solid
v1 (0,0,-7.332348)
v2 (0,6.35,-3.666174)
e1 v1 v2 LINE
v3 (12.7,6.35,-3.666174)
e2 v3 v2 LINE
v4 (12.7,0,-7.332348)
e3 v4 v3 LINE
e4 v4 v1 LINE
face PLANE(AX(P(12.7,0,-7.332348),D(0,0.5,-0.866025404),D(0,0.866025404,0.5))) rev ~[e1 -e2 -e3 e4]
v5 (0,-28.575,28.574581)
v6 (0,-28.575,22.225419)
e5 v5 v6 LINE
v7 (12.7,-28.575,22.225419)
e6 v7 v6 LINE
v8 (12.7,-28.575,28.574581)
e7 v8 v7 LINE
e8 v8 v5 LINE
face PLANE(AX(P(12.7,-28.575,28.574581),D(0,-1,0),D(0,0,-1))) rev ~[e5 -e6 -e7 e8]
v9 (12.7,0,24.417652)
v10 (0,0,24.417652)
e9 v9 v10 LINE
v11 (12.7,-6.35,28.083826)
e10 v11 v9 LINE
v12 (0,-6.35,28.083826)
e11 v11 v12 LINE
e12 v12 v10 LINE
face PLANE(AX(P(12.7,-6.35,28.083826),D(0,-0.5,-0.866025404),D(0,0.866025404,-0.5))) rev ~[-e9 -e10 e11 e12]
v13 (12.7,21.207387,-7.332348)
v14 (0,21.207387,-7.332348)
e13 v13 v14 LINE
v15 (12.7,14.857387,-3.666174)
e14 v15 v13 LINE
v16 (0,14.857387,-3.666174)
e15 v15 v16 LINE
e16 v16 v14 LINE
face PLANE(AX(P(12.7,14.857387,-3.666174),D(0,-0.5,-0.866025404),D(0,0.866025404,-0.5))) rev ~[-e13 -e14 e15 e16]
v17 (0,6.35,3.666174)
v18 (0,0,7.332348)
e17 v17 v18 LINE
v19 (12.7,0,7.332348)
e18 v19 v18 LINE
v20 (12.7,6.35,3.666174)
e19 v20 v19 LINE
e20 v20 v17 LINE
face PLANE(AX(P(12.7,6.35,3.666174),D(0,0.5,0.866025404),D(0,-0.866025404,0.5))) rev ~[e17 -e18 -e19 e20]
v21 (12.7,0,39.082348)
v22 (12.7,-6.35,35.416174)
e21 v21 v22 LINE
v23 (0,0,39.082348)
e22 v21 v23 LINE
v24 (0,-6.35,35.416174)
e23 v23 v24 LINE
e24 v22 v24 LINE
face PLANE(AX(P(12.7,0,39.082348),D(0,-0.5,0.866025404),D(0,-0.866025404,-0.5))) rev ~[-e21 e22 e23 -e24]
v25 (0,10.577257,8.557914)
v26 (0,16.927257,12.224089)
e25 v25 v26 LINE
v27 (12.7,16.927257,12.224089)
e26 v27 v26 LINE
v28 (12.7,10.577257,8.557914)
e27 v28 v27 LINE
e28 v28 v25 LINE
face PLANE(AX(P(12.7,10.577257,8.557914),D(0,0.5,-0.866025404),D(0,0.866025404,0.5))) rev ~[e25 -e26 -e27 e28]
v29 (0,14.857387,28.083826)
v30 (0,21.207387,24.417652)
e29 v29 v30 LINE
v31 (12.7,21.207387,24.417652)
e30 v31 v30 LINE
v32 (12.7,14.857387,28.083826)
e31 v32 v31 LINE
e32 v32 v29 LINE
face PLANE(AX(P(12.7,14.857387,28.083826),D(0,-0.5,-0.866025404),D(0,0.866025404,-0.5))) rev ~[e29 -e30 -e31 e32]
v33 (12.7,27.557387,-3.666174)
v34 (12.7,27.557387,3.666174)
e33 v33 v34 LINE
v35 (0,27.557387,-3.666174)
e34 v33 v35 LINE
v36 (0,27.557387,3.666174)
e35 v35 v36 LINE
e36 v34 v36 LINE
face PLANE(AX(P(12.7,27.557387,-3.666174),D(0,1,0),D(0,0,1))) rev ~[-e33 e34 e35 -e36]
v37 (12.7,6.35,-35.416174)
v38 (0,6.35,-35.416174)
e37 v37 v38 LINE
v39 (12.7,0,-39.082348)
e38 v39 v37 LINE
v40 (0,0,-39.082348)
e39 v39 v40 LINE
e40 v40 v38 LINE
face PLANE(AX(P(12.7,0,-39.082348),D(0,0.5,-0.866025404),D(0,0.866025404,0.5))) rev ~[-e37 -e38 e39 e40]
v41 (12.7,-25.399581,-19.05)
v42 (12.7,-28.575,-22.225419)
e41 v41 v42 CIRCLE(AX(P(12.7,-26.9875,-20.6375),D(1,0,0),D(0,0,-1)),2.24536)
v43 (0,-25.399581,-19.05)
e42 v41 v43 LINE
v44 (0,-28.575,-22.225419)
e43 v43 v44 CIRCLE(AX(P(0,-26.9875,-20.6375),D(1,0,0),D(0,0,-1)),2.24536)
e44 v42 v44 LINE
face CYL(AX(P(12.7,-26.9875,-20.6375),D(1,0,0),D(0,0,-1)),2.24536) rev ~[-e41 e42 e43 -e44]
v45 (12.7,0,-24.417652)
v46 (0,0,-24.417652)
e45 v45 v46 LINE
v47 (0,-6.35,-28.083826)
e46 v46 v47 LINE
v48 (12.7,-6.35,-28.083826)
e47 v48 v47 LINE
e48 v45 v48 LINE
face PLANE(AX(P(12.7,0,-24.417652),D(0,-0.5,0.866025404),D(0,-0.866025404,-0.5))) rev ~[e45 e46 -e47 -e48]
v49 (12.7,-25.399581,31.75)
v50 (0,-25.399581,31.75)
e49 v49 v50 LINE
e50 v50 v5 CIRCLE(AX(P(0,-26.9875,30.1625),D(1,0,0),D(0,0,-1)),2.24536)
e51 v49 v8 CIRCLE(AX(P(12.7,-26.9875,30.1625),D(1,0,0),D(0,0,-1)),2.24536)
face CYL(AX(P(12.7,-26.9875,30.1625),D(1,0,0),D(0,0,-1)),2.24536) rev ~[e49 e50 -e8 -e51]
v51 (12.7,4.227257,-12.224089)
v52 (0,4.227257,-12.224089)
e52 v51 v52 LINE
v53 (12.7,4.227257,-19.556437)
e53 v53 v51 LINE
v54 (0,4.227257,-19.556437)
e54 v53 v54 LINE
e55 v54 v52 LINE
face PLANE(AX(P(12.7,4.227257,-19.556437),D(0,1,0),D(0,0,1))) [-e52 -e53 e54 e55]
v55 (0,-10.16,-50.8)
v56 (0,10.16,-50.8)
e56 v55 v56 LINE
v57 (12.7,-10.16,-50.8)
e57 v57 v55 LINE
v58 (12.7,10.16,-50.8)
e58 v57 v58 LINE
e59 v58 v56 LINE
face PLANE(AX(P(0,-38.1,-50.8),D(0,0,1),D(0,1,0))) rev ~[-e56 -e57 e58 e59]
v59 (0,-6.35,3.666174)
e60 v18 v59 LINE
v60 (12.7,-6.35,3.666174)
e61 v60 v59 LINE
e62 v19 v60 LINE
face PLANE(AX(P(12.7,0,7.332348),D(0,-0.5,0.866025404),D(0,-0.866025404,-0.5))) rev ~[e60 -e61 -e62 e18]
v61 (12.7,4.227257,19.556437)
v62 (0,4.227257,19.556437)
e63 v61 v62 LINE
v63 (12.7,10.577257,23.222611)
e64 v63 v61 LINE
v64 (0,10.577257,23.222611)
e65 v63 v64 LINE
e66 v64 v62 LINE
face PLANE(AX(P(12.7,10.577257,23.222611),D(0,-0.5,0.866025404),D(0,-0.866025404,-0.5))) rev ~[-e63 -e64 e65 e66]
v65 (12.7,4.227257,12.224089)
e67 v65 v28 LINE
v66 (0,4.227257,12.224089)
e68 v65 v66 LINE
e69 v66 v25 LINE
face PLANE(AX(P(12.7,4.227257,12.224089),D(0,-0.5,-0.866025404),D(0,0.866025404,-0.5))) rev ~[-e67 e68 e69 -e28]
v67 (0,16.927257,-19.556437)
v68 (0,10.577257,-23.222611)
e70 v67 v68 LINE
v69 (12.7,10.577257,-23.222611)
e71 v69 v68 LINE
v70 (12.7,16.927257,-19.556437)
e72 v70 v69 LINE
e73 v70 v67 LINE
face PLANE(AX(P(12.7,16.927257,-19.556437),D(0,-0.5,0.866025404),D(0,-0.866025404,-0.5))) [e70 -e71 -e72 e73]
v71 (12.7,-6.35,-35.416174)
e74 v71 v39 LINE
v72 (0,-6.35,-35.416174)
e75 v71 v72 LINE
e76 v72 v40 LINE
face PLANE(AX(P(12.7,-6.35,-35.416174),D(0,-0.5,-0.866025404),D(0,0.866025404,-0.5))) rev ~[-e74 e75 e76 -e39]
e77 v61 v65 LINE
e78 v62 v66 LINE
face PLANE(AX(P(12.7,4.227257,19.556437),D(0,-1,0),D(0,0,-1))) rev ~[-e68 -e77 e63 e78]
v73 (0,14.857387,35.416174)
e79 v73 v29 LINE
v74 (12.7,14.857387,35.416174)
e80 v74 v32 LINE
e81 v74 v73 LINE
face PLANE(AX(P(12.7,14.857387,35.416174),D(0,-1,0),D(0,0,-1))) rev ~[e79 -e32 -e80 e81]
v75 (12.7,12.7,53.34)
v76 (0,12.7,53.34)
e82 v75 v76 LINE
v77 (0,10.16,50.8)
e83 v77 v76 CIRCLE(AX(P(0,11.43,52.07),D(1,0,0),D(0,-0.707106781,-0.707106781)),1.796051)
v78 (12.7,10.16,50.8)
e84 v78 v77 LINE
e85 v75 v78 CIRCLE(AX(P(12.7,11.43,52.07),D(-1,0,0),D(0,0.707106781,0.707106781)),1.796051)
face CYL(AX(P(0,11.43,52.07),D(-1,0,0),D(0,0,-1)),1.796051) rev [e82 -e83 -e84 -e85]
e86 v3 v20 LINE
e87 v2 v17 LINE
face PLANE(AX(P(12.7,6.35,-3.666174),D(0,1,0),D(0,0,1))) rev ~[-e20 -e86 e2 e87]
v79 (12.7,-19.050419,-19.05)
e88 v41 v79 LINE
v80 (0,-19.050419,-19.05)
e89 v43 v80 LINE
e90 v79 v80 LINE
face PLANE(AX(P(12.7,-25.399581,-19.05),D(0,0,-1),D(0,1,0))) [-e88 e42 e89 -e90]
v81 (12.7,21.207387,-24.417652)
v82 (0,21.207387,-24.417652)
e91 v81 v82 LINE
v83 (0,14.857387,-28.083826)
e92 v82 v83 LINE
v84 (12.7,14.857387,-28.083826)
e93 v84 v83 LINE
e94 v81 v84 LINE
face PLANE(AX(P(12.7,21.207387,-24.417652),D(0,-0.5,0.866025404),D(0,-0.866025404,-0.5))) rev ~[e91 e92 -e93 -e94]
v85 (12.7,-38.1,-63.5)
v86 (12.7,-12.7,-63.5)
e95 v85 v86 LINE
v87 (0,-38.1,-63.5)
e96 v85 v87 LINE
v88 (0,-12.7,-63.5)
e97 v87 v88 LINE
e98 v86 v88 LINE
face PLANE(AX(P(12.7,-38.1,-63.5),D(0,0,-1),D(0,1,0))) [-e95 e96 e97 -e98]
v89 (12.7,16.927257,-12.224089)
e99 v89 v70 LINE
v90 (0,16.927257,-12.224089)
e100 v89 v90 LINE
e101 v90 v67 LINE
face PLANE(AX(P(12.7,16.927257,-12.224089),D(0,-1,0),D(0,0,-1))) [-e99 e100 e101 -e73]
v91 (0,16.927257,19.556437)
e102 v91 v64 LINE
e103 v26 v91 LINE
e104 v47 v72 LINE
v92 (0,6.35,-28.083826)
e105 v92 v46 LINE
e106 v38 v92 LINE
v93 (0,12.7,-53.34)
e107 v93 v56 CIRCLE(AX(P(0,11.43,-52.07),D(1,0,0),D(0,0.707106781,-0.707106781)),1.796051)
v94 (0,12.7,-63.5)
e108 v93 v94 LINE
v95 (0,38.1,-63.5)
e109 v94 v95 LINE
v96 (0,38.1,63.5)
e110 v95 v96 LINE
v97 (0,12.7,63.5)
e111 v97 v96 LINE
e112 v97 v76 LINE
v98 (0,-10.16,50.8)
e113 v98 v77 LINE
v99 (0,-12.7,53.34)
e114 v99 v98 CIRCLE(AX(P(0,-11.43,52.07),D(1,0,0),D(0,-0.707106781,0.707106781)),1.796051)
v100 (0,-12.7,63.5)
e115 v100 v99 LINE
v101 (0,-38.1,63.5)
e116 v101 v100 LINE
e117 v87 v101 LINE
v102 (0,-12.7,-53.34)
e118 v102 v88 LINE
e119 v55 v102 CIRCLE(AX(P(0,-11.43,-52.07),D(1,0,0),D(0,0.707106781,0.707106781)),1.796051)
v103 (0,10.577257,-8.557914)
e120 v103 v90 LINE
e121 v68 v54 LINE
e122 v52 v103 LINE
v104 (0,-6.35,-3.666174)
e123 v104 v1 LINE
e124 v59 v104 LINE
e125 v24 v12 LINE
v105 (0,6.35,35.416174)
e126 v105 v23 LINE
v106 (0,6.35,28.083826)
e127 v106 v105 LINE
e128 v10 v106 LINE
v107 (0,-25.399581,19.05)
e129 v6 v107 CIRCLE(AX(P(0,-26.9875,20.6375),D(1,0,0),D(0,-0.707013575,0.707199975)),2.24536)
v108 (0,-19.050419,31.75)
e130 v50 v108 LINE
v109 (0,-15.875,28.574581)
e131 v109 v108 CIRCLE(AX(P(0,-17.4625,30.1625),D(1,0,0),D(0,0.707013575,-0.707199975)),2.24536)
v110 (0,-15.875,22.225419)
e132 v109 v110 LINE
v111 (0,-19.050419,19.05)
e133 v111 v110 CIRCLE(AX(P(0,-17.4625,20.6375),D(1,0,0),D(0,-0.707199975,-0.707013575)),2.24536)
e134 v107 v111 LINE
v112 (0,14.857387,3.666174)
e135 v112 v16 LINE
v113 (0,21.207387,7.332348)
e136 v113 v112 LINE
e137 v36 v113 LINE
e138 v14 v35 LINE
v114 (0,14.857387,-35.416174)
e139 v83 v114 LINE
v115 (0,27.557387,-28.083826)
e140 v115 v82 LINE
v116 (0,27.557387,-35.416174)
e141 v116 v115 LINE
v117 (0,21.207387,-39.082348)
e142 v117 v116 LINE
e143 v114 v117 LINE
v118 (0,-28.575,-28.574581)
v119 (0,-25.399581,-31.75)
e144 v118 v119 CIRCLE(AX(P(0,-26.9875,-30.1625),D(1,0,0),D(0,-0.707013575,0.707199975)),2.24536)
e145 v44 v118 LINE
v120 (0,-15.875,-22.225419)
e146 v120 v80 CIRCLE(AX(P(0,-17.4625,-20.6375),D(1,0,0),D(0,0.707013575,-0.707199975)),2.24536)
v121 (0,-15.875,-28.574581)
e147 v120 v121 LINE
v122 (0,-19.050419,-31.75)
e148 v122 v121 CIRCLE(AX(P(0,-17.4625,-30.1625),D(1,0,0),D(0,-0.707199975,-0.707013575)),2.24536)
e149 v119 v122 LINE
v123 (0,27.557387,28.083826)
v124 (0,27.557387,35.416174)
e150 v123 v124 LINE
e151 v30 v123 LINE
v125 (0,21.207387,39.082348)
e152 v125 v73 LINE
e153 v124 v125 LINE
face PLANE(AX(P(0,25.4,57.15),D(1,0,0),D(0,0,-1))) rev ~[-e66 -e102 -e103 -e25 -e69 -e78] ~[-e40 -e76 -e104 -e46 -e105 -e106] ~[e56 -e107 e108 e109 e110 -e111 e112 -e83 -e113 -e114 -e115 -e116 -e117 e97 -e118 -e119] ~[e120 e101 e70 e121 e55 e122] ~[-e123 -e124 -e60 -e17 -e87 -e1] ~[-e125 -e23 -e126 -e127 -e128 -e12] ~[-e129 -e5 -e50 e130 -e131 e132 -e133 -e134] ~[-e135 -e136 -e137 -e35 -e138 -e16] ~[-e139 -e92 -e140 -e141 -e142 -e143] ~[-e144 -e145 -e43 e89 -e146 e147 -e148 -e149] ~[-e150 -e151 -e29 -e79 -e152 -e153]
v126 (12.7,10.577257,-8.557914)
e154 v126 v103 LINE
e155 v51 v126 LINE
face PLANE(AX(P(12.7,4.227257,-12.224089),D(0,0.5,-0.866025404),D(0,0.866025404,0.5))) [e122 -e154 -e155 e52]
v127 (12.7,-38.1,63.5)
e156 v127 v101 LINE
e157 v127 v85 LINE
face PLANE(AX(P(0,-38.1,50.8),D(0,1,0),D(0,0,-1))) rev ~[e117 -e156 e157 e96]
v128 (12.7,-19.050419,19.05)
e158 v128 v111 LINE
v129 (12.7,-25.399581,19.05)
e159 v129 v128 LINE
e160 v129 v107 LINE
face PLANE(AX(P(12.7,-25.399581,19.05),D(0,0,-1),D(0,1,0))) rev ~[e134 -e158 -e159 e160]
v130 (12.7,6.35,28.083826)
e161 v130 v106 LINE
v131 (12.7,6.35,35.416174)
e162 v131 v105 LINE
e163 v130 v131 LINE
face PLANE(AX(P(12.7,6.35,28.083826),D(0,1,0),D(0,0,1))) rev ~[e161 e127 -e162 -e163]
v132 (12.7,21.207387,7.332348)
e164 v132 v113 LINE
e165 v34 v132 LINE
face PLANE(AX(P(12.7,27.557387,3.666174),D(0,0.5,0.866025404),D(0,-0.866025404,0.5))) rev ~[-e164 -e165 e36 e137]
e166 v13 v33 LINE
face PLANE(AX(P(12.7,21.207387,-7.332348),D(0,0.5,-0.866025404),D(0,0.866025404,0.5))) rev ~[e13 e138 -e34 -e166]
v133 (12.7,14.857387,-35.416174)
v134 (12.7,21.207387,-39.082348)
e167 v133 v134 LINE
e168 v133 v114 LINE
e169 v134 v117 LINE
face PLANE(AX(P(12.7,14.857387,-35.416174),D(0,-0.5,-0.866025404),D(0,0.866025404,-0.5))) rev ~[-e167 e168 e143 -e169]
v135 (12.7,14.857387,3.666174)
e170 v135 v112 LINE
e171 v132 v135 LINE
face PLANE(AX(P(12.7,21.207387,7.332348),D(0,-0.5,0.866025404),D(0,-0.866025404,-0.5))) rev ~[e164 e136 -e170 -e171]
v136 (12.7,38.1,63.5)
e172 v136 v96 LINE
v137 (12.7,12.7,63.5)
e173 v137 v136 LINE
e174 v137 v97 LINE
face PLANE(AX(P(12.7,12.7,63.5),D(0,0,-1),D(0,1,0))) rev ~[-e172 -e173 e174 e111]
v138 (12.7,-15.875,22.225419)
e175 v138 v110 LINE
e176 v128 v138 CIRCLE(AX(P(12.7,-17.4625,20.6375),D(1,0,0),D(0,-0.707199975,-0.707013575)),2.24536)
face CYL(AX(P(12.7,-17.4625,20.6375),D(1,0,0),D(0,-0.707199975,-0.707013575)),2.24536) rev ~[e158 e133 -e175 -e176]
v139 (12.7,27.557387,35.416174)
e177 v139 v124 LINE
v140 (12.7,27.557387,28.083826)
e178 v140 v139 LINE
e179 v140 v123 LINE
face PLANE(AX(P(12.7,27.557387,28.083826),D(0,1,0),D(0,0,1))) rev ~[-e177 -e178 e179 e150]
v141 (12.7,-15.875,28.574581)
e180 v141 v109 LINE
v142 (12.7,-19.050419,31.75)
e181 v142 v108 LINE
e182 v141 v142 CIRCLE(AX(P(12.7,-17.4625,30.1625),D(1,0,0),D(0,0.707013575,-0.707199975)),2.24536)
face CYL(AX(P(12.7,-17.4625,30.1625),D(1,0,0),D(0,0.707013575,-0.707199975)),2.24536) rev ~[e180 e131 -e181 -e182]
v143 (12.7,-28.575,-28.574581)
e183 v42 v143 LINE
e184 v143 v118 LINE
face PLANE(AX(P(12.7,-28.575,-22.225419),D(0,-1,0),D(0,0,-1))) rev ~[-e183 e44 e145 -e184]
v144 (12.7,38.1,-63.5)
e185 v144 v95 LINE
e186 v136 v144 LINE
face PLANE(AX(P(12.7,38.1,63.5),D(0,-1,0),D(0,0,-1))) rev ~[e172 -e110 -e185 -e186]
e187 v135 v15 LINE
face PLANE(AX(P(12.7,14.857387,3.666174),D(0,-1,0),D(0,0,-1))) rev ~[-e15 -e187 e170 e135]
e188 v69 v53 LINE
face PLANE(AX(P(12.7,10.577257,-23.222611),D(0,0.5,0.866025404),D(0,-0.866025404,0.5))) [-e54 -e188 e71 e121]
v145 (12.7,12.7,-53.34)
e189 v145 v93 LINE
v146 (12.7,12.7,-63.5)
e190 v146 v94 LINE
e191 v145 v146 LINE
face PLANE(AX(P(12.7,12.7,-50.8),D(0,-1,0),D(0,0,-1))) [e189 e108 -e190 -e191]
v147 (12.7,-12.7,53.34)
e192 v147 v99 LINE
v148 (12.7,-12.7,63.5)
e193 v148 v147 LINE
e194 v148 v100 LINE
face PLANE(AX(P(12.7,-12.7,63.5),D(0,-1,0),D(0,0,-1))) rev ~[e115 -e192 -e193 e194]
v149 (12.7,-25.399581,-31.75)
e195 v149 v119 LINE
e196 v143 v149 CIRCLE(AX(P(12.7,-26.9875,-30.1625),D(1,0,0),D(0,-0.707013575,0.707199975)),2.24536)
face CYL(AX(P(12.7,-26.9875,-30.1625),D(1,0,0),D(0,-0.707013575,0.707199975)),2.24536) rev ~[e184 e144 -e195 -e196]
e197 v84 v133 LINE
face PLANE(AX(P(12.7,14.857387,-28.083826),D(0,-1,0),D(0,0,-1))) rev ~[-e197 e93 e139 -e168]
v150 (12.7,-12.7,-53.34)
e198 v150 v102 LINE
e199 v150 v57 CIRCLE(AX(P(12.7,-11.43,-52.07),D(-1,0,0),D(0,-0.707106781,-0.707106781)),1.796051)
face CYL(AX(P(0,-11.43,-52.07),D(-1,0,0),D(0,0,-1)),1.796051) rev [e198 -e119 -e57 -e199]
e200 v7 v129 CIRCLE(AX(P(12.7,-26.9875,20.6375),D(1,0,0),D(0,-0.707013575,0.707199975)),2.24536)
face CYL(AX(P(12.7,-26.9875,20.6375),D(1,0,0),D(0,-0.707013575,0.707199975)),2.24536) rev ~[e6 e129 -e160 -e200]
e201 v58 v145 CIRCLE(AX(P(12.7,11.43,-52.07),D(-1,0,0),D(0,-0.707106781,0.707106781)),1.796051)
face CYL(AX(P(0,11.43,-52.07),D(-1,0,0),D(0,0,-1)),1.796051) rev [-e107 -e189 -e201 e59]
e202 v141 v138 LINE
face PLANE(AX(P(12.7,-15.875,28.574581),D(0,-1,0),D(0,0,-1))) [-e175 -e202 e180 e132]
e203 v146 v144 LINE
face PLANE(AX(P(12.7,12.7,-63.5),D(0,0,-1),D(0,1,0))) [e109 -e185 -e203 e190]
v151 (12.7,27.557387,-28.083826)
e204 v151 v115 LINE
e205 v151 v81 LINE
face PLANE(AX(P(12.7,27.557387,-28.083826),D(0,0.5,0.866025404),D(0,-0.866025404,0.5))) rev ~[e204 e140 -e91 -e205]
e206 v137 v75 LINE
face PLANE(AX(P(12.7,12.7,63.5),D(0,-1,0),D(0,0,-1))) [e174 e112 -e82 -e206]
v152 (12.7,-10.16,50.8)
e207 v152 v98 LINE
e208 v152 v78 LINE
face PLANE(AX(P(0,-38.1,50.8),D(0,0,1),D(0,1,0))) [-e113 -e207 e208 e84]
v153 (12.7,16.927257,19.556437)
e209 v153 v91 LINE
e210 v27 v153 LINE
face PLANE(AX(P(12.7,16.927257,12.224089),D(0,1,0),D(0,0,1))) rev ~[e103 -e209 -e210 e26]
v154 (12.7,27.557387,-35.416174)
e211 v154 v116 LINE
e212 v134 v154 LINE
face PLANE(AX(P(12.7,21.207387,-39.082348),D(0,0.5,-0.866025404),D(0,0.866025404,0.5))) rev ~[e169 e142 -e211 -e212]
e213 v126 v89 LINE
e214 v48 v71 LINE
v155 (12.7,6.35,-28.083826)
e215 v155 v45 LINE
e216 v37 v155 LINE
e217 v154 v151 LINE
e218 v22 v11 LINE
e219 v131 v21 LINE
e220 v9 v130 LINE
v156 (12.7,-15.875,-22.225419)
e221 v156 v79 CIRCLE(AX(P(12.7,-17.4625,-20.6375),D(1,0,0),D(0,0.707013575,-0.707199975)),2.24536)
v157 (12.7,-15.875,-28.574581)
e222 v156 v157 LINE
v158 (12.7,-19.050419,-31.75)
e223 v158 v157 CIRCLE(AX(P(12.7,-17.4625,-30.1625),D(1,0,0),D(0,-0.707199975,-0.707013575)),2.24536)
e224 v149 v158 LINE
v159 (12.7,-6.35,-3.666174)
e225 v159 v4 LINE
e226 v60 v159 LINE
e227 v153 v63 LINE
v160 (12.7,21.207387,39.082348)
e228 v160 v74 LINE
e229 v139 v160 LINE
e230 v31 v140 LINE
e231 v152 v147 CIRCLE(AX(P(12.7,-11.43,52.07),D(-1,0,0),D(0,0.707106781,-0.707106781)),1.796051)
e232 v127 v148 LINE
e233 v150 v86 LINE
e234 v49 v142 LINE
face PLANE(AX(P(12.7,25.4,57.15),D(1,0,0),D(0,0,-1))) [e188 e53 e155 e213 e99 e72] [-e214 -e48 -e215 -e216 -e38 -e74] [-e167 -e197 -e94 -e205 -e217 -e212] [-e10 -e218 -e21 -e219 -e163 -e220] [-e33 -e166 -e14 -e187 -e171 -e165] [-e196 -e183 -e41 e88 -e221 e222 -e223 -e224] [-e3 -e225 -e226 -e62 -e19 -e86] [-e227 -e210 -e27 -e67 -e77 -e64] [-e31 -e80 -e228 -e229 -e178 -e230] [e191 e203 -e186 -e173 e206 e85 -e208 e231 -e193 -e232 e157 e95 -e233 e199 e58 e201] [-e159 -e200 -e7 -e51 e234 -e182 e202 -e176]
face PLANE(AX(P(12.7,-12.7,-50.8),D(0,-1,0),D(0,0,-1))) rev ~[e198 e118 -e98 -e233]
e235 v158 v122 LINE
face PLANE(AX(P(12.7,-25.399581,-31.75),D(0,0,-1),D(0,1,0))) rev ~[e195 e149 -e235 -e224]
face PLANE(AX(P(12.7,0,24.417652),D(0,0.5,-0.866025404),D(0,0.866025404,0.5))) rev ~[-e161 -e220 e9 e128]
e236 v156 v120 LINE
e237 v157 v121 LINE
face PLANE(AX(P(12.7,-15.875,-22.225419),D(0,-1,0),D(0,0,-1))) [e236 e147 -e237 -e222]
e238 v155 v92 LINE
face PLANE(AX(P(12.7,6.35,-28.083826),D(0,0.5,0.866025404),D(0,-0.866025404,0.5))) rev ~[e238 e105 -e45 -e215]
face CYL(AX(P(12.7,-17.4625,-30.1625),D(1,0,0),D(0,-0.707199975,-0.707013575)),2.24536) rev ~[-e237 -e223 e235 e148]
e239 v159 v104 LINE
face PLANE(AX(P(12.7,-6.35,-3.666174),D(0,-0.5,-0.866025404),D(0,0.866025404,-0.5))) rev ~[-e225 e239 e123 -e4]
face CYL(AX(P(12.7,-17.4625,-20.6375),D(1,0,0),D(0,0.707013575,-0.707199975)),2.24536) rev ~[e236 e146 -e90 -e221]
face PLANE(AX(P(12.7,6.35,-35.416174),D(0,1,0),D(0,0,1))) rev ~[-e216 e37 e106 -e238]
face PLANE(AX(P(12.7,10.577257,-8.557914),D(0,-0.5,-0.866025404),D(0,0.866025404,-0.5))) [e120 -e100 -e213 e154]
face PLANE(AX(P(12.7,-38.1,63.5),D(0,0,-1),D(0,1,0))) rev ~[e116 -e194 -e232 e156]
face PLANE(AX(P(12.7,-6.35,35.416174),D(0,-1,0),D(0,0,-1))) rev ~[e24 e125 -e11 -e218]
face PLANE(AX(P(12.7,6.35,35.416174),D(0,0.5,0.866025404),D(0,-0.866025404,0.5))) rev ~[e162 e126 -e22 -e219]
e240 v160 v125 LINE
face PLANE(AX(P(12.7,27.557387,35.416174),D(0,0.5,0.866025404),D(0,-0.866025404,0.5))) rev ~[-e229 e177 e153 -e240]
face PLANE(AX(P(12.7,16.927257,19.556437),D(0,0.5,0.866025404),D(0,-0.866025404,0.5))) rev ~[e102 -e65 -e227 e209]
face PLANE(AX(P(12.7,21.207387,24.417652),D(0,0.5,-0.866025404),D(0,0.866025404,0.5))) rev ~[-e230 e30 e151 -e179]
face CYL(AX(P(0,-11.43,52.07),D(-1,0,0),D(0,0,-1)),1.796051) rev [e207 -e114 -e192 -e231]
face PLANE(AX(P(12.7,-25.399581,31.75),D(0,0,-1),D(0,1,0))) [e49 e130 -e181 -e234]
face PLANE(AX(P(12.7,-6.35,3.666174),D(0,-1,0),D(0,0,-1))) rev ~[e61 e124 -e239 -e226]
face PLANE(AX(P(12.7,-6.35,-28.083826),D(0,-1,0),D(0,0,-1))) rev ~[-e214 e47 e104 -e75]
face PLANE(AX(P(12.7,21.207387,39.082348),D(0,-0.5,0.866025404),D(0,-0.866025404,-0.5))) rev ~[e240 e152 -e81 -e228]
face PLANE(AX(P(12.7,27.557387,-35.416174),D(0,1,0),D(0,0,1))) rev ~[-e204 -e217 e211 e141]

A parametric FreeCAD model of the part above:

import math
import FreeCAD as App
import Part
import Sketcher
from FreeCAD import Vector
Q = App.Units.Quantity

doc = App.newDocument("Part")
body = doc.addObject("PartDesign::Body", "Body")

sketch1 = body.newObject("Sketcher::SketchObject", "Sketch")
sketch1.AttachmentSupport = (doc.getObject("YZ_Plane"), [""])
sketch1.MapMode = "FlatFace"
sketch1.addGeometry([
    Part.LineSegment(Vector(38, 51, 0), Vector(-38, 51, 0)),
    Part.LineSegment(Vector(-38, 51, 0), Vector(-38, -51, 0)),
    Part.LineSegment(Vector(-38, -51, 0), Vector(38, -51, 0)),
    Part.LineSegment(Vector(38, -51, 0), Vector(38, 51, 0)),
], False)
sketch1.addConstraint([
    Sketcher.Constraint("Coincident", 0, 2, 1, 1),
    Sketcher.Constraint("Coincident", 1, 2, 2, 1),
    Sketcher.Constraint("Coincident", 2, 2, 3, 1),
    Sketcher.Constraint("Coincident", 3, 2, 0, 1),
    Sketcher.Constraint("Horizontal", 0),
    Sketcher.Constraint("Vertical", 1),
    Sketcher.Constraint("Horizontal", 2),
    Sketcher.Constraint("Vertical", 3),
    Sketcher.Constraint("Symmetric", 0, 2, 2, 2, -1, 1),
    Sketcher.Constraint("DistanceX", 0, 2, 0, 1, Q("3 in")),
    Sketcher.Constraint("DistanceY", 1, 2, 1, 1, Q("4 in")),
])
pad1 = body.newObject("PartDesign::Pad", "Pad")
pad1.Profile = sketch1
pad1.Length = Q("0.5 in")

sketch2 = body.newObject("Sketcher::SketchObject", "Sketch001")
sketch2.AttachmentSupport = (doc.getObject("YZ_Plane"), [""])
sketch2.MapMode = "FlatFace"
sketch2.AttachmentOffset = App.Placement(Vector(0, 0, 0.5 * 25.4), App.Rotation())
sketch2.addGeometry([
    Part.LineSegment(Vector(-15.9, 22.2, 0), Vector(-15.9, 28.6, 0)),
    Part.ArcOfCircle(Part.Circle(Vector(-17.5, 30.2, 0), Vector(0, 0, 1), 2.2), math.radians(-45), math.radians(135)),
    Part.LineSegment(Vector(-19.1, 31.8, 0), Vector(-25.4, 31.8, 0)),
    Part.ArcOfCircle(Part.Circle(Vector(-27, 30.2, 0), Vector(0, 0, 1), 2.2), math.radians(45), math.radians(225)),
    Part.LineSegment(Vector(-28.6, 28.6, 0), Vector(-28.6, 22.2, 0)),
    Part.ArcOfCircle(Part.Circle(Vector(-27, 20.6, 0), Vector(0, 0, 1), 2.2), math.radians(135), math.radians(315)),
    Part.LineSegment(Vector(-25.4, 19.1, 0), Vector(-19.1, 19.1, 0)),
    Part.ArcOfCircle(Part.Circle(Vector(-17.5, 20.6, 0), Vector(0, 0, 1), 2.2), math.radians(-135), math.radians(45)),
    Part.ArcOfCircle(Part.Circle(Vector(-27, -20.6, 0), Vector(0, 0, 1), 2.2), math.radians(45), math.radians(225)),
    Part.LineSegment(Vector(-28.6, -22.2, 0), Vector(-28.6, -28.6, 0)),
    Part.ArcOfCircle(Part.Circle(Vector(-27, -30.2, 0), Vector(0, 0, 1), 2.2), math.radians(135), math.radians(315)),
    Part.LineSegment(Vector(-25.4, -31.8, 0), Vector(-19.1, -31.8, 0)),
    Part.ArcOfCircle(Part.Circle(Vector(-17.5, -30.2, 0), Vector(0, 0, 1), 2.2), math.radians(-135), math.radians(45)),
    Part.LineSegment(Vector(-15.9, -28.6, 0), Vector(-15.9, -22.2, 0)),
    Part.ArcOfCircle(Part.Circle(Vector(-17.5, -20.6, 0), Vector(0, 0, 1), 2.2), math.radians(-45), math.radians(135)),
    Part.LineSegment(Vector(-19.1, -19.1, 0), Vector(-25.4, -19.1, 0)),
], False)
sketch2.addConstraint([
    Sketcher.Constraint("Coincident", 0, 2, 1, 1),
    Sketcher.Constraint("Coincident", 1, 2, 2, 1),
    Sketcher.Constraint("Coincident", 2, 2, 3, 1),
    Sketcher.Constraint("Coincident", 3, 2, 4, 1),
    Sketcher.Constraint("Coincident", 4, 2, 5, 1),
    Sketcher.Constraint("Coincident", 5, 2, 6, 1),
    Sketcher.Constraint("Coincident", 6, 2, 7, 1),
    Sketcher.Constraint("Coincident", 7, 2, 0, 1),
    Sketcher.Constraint("Coincident", 8, 2, 9, 1),
    Sketcher.Constraint("Coincident", 9, 2, 10, 1),
    Sketcher.Constraint("Coincident", 10, 2, 11, 1),
    Sketcher.Constraint("Coincident", 11, 2, 12, 1),
    Sketcher.Constraint("Coincident", 12, 2, 13, 1),
    Sketcher.Constraint("Coincident", 13, 2, 14, 1),
    Sketcher.Constraint("Coincident", 14, 2, 15, 1),
    Sketcher.Constraint("Coincident", 15, 2, 8, 1),
    Sketcher.Constraint("Vertical", 0),
    Sketcher.Constraint("Horizontal", 2),
    Sketcher.Constraint("Vertical", 4),
    Sketcher.Constraint("Horizontal", 6),
    Sketcher.Constraint("Vertical", 9),
    Sketcher.Constraint("Horizontal", 11),
    Sketcher.Constraint("Vertical", 13),
    Sketcher.Constraint("Horizontal", 15),
    Sketcher.Constraint("Equal", 1, 3),
    Sketcher.Constraint("Equal", 3, 5),
    Sketcher.Constraint("Equal", 5, 7),
    Sketcher.Constraint("Equal", 7, 8),
    Sketcher.Constraint("Equal", 8, 10),
    Sketcher.Constraint("Equal", 10, 12),
    Sketcher.Constraint("Equal", 12, 14),
    Sketcher.Constraint("Symmetric", 5, 3, 8, 3, -1),
    Sketcher.Constraint("Symmetric", 3, 3, 10, 3, -1),
    Sketcher.Constraint("Symmetric", 1, 3, 12, 3, -1),
    Sketcher.Constraint("Symmetric", 7, 3, 14, 3, -1),
    Sketcher.Constraint("Horizontal", 1, 3, 3, 3),
    Sketcher.Constraint("Horizontal", 5, 3, 7, 3),
    Sketcher.Constraint("Horizontal", 0, 2, 3, 2),
    Sketcher.Constraint("Horizontal", 4, 2, 7, 2),
    Sketcher.Constraint("Horizontal", 9, 2, 12, 2),
    Sketcher.Constraint("Vertical", 3, 3, 5, 3),
    Sketcher.Constraint("Vertical", 2, 2, 5, 2),
    Sketcher.Constraint("Vertical", 4, 2, 8, 2),
    Sketcher.Constraint("Vertical", 5, 2, 10, 2),
    Sketcher.Constraint("Vertical", 11, 2, 14, 2),
    Sketcher.Constraint("Equal", 15, 0),
    Sketcher.Constraint("DistanceY", 8, 3, 3, 3, Q("2 in")),
    Sketcher.Constraint("Radius", 1, Q("0.0884 in")),
    Sketcher.Constraint("DistanceY", -1, 1, 1, 2, Q("1.25 in")),
    Sketcher.Constraint("DistanceX", 1, 3, -1, 1, Q("0.6875 in")),
    Sketcher.Constraint("DistanceY", -1, 1, 1, 3, Q("1.1875 in")),
    Sketcher.Constraint("DistanceX", 3, 3, -1, 1, Q("1.0625 in")),
])
pocket1 = body.newObject("PartDesign::Pocket", "Pocket")
pocket1.Profile = sketch2
pocket1.Length = Q("0.5 in")

sketch3 = body.newObject("Sketcher::SketchObject", "Sketch002")
sketch3.AttachmentSupport = (doc.getObject("YZ_Plane"), [""])
sketch3.MapMode = "FlatFace"
sketch3.AttachmentOffset = App.Placement(Vector(0, 0, 0.5 * 25.4), App.Rotation())
sketch3.addGeometry([
    Part.LineSegment(Vector(15, 35, 0), Vector(15, 28, 0)),
    Part.LineSegment(Vector(15, 28, 0), Vector(21, 24, 0)),
    Part.LineSegment(Vector(21, 24, 0), Vector(28, 28, 0)),
    Part.LineSegment(Vector(28, 28, 0), Vector(28, 35, 0)),
    Part.LineSegment(Vector(28, 35, 0), Vector(21, 39, 0)),
    Part.LineSegment(Vector(21, 39, 0), Vector(15, 35, 0)),
    Part.LineSegment(Vector(-6, 4, 0), Vector(-6, -4, 0)),
    Part.LineSegment(Vector(-6, -4, 0), Vector(0, -7, 0)),
    Part.LineSegment(Vector(0, -7, 0), Vector(6, -4, 0)),
    Part.LineSegment(Vector(6, -4, 0), Vector(6, 4, 0)),
    Part.LineSegment(Vector(6, 4, 0), Vector(0, 7, 0)),
    Part.LineSegment(Vector(0, 7, 0), Vector(-6, 4, 0)),
    Part.LineSegment(Vector(-6, 35, 0), Vector(-6, 28, 0)),
    Part.LineSegment(Vector(-6, 28, 0), Vector(0, 24, 0)),
    Part.LineSegment(Vector(0, 24, 0), Vector(6, 28, 0)),
    Part.LineSegment(Vector(6, 28, 0), Vector(6, 35, 0)),
    Part.LineSegment(Vector(6, 35, 0), Vector(0, 39, 0)),
    Part.LineSegment(Vector(0, 39, 0), Vector(-6, 35, 0)),
    Part.LineSegment(Vector(-6, -28, 0), Vector(-6, -35, 0)),
    Part.LineSegment(Vector(-6, -35, 0), Vector(0, -39, 0)),
    Part.LineSegment(Vector(0, -39, 0), Vector(6, -35, 0)),
    Part.LineSegment(Vector(6, -35, 0), Vector(6, -28, 0)),
    Part.LineSegment(Vector(6, -28, 0), Vector(0, -24, 0)),
    Part.LineSegment(Vector(0, -24, 0), Vector(-6, -28, 0)),
    Part.LineSegment(Vector(15, 4, 0), Vector(15, -4, 0)),
    Part.LineSegment(Vector(15, -4, 0), Vector(21, -7, 0)),
    Part.LineSegment(Vector(21, -7, 0), Vector(28, -4, 0)),
    Part.LineSegment(Vector(28, -4, 0), Vector(28, 4, 0)),
    Part.LineSegment(Vector(28, 4, 0), Vector(21, 7, 0)),
    Part.LineSegment(Vector(21, 7, 0), Vector(15, 4, 0)),
    Part.LineSegment(Vector(15, -28, 0), Vector(15, -35, 0)),
    Part.LineSegment(Vector(15, -35, 0), Vector(21, -39, 0)),
    Part.LineSegment(Vector(21, -39, 0), Vector(28, -35, 0)),
    Part.LineSegment(Vector(28, -35, 0), Vector(28, -28, 0)),
    Part.LineSegment(Vector(28, -28, 0), Vector(21, -24, 0)),
    Part.LineSegment(Vector(21, -24, 0), Vector(15, -28, 0)),
    Part.LineSegment(Vector(4, -12, 0), Vector(4, -20, 0)),
    Part.LineSegment(Vector(4, -20, 0), Vector(11, -23, 0)),
    Part.LineSegment(Vector(11, -23, 0), Vector(17, -20, 0)),
    Part.LineSegment(Vector(17, -20, 0), Vector(17, -12, 0)),
    Part.LineSegment(Vector(17, -12, 0), Vector(11, -9, 0)),
    Part.LineSegment(Vector(11, -9, 0), Vector(4, -12, 0)),
    Part.LineSegment(Vector(4, 12, 0), Vector(11, 9, 0)),
    Part.LineSegment(Vector(11, 9, 0), Vector(17, 12, 0)),
    Part.LineSegment(Vector(17, 12, 0), Vector(17, 20, 0)),
    Part.LineSegment(Vector(17, 20, 0), Vector(11, 23, 0)),
    Part.LineSegment(Vector(11, 23, 0), Vector(4, 20, 0)),
    Part.LineSegment(Vector(4, 20, 0), Vector(4, 12, 0)),
], False)
sketch3.addConstraint([
    Sketcher.Constraint("Coincident", 0, 2, 1, 1),
    Sketcher.Constraint("Coincident", 1, 2, 2, 1),
    Sketcher.Constraint("Coincident", 2, 2, 3, 1),
    Sketcher.Constraint("Coincident", 3, 2, 4, 1),
    Sketcher.Constraint("Coincident", 4, 2, 5, 1),
    Sketcher.Constraint("Coincident", 5, 2, 0, 1),
    Sketcher.Constraint("Coincident", 6, 2, 7, 1),
    Sketcher.Constraint("Coincident", 7, 2, 8, 1),
    Sketcher.Constraint("Coincident", 8, 2, 9, 1),
    Sketcher.Constraint("Coincident", 9, 2, 10, 1),
    Sketcher.Constraint("Coincident", 10, 2, 11, 1),
    Sketcher.Constraint("Coincident", 11, 2, 6, 1),
    Sketcher.Constraint("Coincident", 12, 2, 13, 1),
    Sketcher.Constraint("Coincident", 13, 2, 14, 1),
    Sketcher.Constraint("Coincident", 14, 2, 15, 1),
    Sketcher.Constraint("Coincident", 15, 2, 16, 1),
    Sketcher.Constraint("Coincident", 16, 2, 17, 1),
    Sketcher.Constraint("Coincident", 17, 2, 12, 1),
    Sketcher.Constraint("Coincident", 18, 2, 19, 1),
    Sketcher.Constraint("Coincident", 19, 2, 20, 1),
    Sketcher.Constraint("Coincident", 20, 2, 21, 1),
    Sketcher.Constraint("Coincident", 21, 2, 22, 1),
    Sketcher.Constraint("Coincident", 22, 2, 23, 1),
    Sketcher.Constraint("Coincident", 23, 2, 18, 1),
    Sketcher.Constraint("Coincident", 24, 2, 25, 1),
    Sketcher.Constraint("Coincident", 25, 2, 26, 1),
    Sketcher.Constraint("Coincident", 26, 2, 27, 1),
    Sketcher.Constraint("Coincident", 27, 2, 28, 1),
    Sketcher.Constraint("Coincident", 28, 2, 29, 1),
    Sketcher.Constraint("Coincident", 29, 2, 24, 1),
    Sketcher.Constraint("Coincident", 30, 2, 31, 1),
    Sketcher.Constraint("Coincident", 31, 2, 32, 1),
    Sketcher.Constraint("Coincident", 32, 2, 33, 1),
    Sketcher.Constraint("Coincident", 33, 2, 34, 1),
    Sketcher.Constraint("Coincident", 34, 2, 35, 1),
    Sketcher.Constraint("Coincident", 35, 2, 30, 1),
    Sketcher.Constraint("Coincident", 36, 2, 37, 1),
    Sketcher.Constraint("Coincident", 37, 2, 38, 1),
    Sketcher.Constraint("Coincident", 38, 2, 39, 1),
    Sketcher.Constraint("Coincident", 39, 2, 40, 1),
    Sketcher.Constraint("Coincident", 40, 2, 41, 1),
    Sketcher.Constraint("Coincident", 41, 2, 36, 1),
    Sketcher.Constraint("Coincident", 42, 2, 43, 1),
    Sketcher.Constraint("Coincident", 43, 2, 44, 1),
    Sketcher.Constraint("Coincident", 44, 2, 45, 1),
    Sketcher.Constraint("Coincident", 45, 2, 46, 1),
    Sketcher.Constraint("Coincident", 46, 2, 47, 1),
    Sketcher.Constraint("Coincident", 47, 2, 42, 1),
    Sketcher.Constraint("Vertical", 0),
    Sketcher.Constraint("Vertical", 3),
    Sketcher.Constraint("Vertical", 6),
    Sketcher.Constraint("Vertical", 9),
    Sketcher.Constraint("Vertical", 12),
    Sketcher.Constraint("Vertical", 15),
    Sketcher.Constraint("Vertical", 18),
    Sketcher.Constraint("Vertical", 21),
    Sketcher.Constraint("Vertical", 24),
    Sketcher.Constraint("Vertical", 27),
    Sketcher.Constraint("Vertical", 30),
    Sketcher.Constraint("Vertical", 33),
    Sketcher.Constraint("Vertical", 36),
    Sketcher.Constraint("Vertical", 39),
    Sketcher.Constraint("Vertical", 44),
    Sketcher.Constraint("Vertical", 47),
    Sketcher.Constraint("Symmetric", 6, 2, 9, 2, -1, 1),
    Sketcher.Constraint("Symmetric", 7, 2, 10, 2, -1, 1),
    Sketcher.Constraint("Symmetric", 15, 2, 18, 2, -1, 1),
    Sketcher.Constraint("Symmetric", 16, 2, 19, 2, -1, 1),
    Sketcher.Constraint("Symmetric", 17, 2, 20, 2, -1, 1),
    Sketcher.Constraint("Symmetric", 13, 2, 22, 2, -1, 1),
    Sketcher.Constraint("Symmetric", 12, 2, 14, 2, -2),
    Sketcher.Constraint("Symmetric", 25, 2, 28, 2, -1),
    Sketcher.Constraint("Symmetric", 5, 2, 30, 2, -1),
    Sketcher.Constraint("Symmetric", 4, 2, 31, 2, -1),
    Sketcher.Constraint("Symmetric", 3, 2, 32, 2, -1),
    Sketcher.Constraint("Symmetric", 1, 2, 34, 2, -1),
    Sketcher.Constraint("Symmetric", 40, 2, 42, 2, -1),
    Sketcher.Constraint("Symmetric", 39, 2, 43, 2, -1),
    Sketcher.Constraint("Symmetric", 37, 2, 45, 2, -1),
    Sketcher.Constraint("Symmetric", 36, 2, 46, 2, -1),
    Sketcher.Constraint("PointOnObject", 7, 2, -2),
    Sketcher.Constraint("PointOnObject", 13, 2, -2),
    Sketcher.Constraint("PointOnObject", 16, 2, -2),
    Sketcher.Constraint("Parallel", 1, 4),
    Sketcher.Constraint("Parallel", 2, 5),
    Sketcher.Constraint("Parallel", 4, 7),
    Sketcher.Constraint("Parallel", 5, 8),
    Sketcher.Constraint("Parallel", 8, 11),
    Sketcher.Constraint("Parallel", 10, 13),
    Sketcher.Constraint("Parallel", 11, 14),
    Sketcher.Constraint("Parallel", 13, 16),
    Sketcher.Constraint("Parallel", 14, 17),
    Sketcher.Constraint("Parallel", 19, 22),
    Sketcher.Constraint("Parallel", 20, 23),
    Sketcher.Constraint("Parallel", 22, 25),
    Sketcher.Constraint("Parallel", 23, 26),
    Sketcher.Constraint("Parallel", 25, 28),
    Sketcher.Constraint("Parallel", 26, 29),
    Sketcher.Constraint("Parallel", 31, 34),
    Sketcher.Constraint("Parallel", 32, 35),
    Sketcher.Constraint("Parallel", 34, 37),
    Sketcher.Constraint("Parallel", 35, 38),
    Sketcher.Constraint("Parallel", 37, 40),
    Sketcher.Constraint("Parallel", 38, 41),
    Sketcher.Constraint("Parallel", 40, 42),
    Sketcher.Constraint("Parallel", 42, 45),
    Sketcher.Constraint("Horizontal", 0, 2, 2, 2),
    Sketcher.Constraint("Horizontal", 3, 2, 5, 2),
    Sketcher.Constraint("Horizontal", 2, 2, 12, 2),
    Sketcher.Constraint("Horizontal", 1, 2, 13, 2),
    Sketcher.Constraint("Horizontal", 5, 2, 15, 2),
    Sketcher.Constraint("Horizontal", 8, 2, 24, 2),
    Sketcher.Constraint("Horizontal", 7, 2, 25, 2),
    Sketcher.Constraint("Horizontal", 24, 2, 26, 2),
    Sketcher.Constraint("Horizontal", 36, 2, 38, 2),
    Sketcher.Constraint("Horizontal", 39, 2, 41, 2),
    Sketcher.Constraint("Vertical", 11, 2, 12, 2),
    Sketcher.Constraint("Vertical", 5, 2, 24, 2),
    Sketcher.Constraint("Equal", 3, 6),
    Sketcher.Constraint("Equal", 33, 36),
    Sketcher.Constraint("Equal", 35, 37),
    Sketcher.Constraint("Angle", 1, Q("-30 deg")),
    Sketcher.Constraint("DistanceX", 0, 2, 2, 2, Q("0.5 in")),
    Sketcher.Constraint("DistanceY", 6, 2, 0, 2, Q("1.25 in")),
    Sketcher.Constraint("DistanceY", 0, 2, 0, 1, 7.332348),
    Sketcher.Constraint("DistanceY", 37, 2, -1, 1, 23.222611),
    Sketcher.Constraint("DistanceX", 36, 2, 35, 2, 10.630129),
    Sketcher.Constraint("DistanceX", -1, 1, 0, 2, 14.857387),
])
pocket2 = body.newObject("PartDesign::Pocket", "Pocket001")
pocket2.Profile = sketch3
pocket2.Length = Q("0.5 in")

sketch4 = body.newObject("Sketcher::SketchObject", "Sketch003")
sketch4.AttachmentSupport = (doc.getObject("YZ_Plane"), [""])
sketch4.MapMode = "FlatFace"
sketch4.AttachmentOffset = App.Placement(Vector(0, 0, 0.5 * 25.4), App.Rotation())
sketch4.addGeometry([
    Part.LineSegment(Vector(38, 64, 0), Vector(13, 64, 0)),
    Part.LineSegment(Vector(13, 64, 0), Vector(13, 51, 0)),
    Part.LineSegment(Vector(13, 51, 0), Vector(38, 51, 0)),
    Part.LineSegment(Vector(38, 51, 0), Vector(38, 64, 0)),
    Part.LineSegment(Vector(-13, 64, 0), Vector(-38, 64, 0)),
    Part.LineSegment(Vector(-38, 64, 0), Vector(-38, 51, 0)),
    Part.LineSegment(Vector(-38, 51, 0), Vector(-13, 51, 0)),
    Part.LineSegment(Vector(-13, 51, 0), Vector(-13, 64, 0)),
    Part.LineSegment(Vector(-13, -51, 0), Vector(-38, -51, 0)),
    Part.LineSegment(Vector(-38, -51, 0), Vector(-38, -64, 0)),
    Part.LineSegment(Vector(-38, -64, 0), Vector(-13, -64, 0)),
    Part.LineSegment(Vector(-13, -64, 0), Vector(-13, -51, 0)),
    Part.LineSegment(Vector(38, -51, 0), Vector(13, -51, 0)),
    Part.LineSegment(Vector(13, -51, 0), Vector(13, -64, 0)),
    Part.LineSegment(Vector(13, -64, 0), Vector(38, -64, 0)),
    Part.LineSegment(Vector(38, -64, 0), Vector(38, -51, 0)),
], False)
sketch4.addConstraint([
    Sketcher.Constraint("Coincident", 0, 2, 1, 1),
    Sketcher.Constraint("Coincident", 1, 2, 2, 1),
    Sketcher.Constraint("Coincident", 2, 2, 3, 1),
    Sketcher.Constraint("Coincident", 3, 2, 0, 1),
    Sketcher.Constraint("Coincident", 4, 2, 5, 1),
    Sketcher.Constraint("Coincident", 5, 2, 6, 1),
    Sketcher.Constraint("Coincident", 6, 2, 7, 1),
    Sketcher.Constraint("Coincident", 7, 2, 4, 1),
    Sketcher.Constraint("Coincident", 8, 2, 9, 1),
    Sketcher.Constraint("Coincident", 9, 2, 10, 1),
    Sketcher.Constraint("Coincident", 10, 2, 11, 1),
    Sketcher.Constraint("Coincident", 11, 2, 8, 1),
    Sketcher.Constraint("Coincident", 12, 2, 13, 1),
    Sketcher.Constraint("Coincident", 13, 2, 14, 1),
    Sketcher.Constraint("Coincident", 14, 2, 15, 1),
    Sketcher.Constraint("Coincident", 15, 2, 12, 1),
    Sketcher.Constraint("Horizontal", 0),
    Sketcher.Constraint("Vertical", 1),
    Sketcher.Constraint("Horizontal", 2),
    Sketcher.Constraint("Vertical", 3),
    Sketcher.Constraint("Horizontal", 4),
    Sketcher.Constraint("Vertical", 5),
    Sketcher.Constraint("Horizontal", 6),
    Sketcher.Constraint("Vertical", 7),
    Sketcher.Constraint("Horizontal", 8),
    Sketcher.Constraint("Vertical", 9),
    Sketcher.Constraint("Horizontal", 10),
    Sketcher.Constraint("Vertical", 11),
    Sketcher.Constraint("Horizontal", 12),
    Sketcher.Constraint("Vertical", 13),
    Sketcher.Constraint("Horizontal", 14),
    Sketcher.Constraint("Vertical", 15),
    Sketcher.Constraint("Symmetric", 2, 2, 8, 2, -1, 1),
    Sketcher.Constraint("Symmetric", 0, 2, 10, 2, -1, 1),
    Sketcher.Constraint("Symmetric", 6, 2, 12, 2, -1, 1),
    Sketcher.Constraint("Symmetric", 4, 2, 14, 2, -1, 1),
    Sketcher.Constraint("Symmetric", 3, 2, 4, 2, -2),
    Sketcher.Constraint("Symmetric", 1, 2, 6, 2, -2),
    Sketcher.Constraint("DistanceX", 0, 2, 0, 1, Q("1 in")),
    Sketcher.Constraint("DistanceY", 1, 2, 1, 1, Q("0.5 in")),
    Sketcher.Constraint("DistanceY", -1, 1, 1, 2, Q("2 in")),
    Sketcher.Constraint("DistanceX", 4, 2, 0, 2, Q("2 in")),
])
pad2 = body.newObject("PartDesign::Pad", "Pad001")
pad2.Profile = sketch4
pad2.Length = Q("0.5 in")
pad2.Reversed = True

sketch5 = body.newObject("Sketcher::SketchObject", "Sketch004")
sketch5.AttachmentSupport = (doc.getObject("YZ_Plane"), [""])
sketch5.MapMode = "FlatFace"
sketch5.addGeometry([
    Part.Circle(Vector(11.4, 52.1, 0), Vector(0, 0, 1), 1.8),
    Part.Circle(Vector(-11.4, 52.1, 0), Vector(0, 0, 1), 1.8),
    Part.Circle(Vector(-11.4, -52.1, 0), Vector(0, 0, 1), 1.8),
    Part.Circle(Vector(11.4, -52.1, 0), Vector(0, 0, 1), 1.8),
], False)
sketch5.addConstraint([
    Sketcher.Constraint("Equal", 0, 1),
    Sketcher.Constraint("Equal", 1, 2),
    Sketcher.Constraint("Equal", 2, 3),
    Sketcher.Constraint("Symmetric", 0, 3, 2, 3, -1, 1),
    Sketcher.Constraint("Symmetric", 1, 3, 3, 3, -1, 1),
    Sketcher.Constraint("Symmetric", 0, 3, 1, 3, -2),
    Sketcher.Constraint("DistanceX", 1, 3, 0, 3, Q("0.9 in")),
    Sketcher.Constraint("DistanceY", 2, 3, 1, 3, Q("4.1 in")),
    Sketcher.Constraint("Diameter", 0, 3.592102),
])
pocket3 = body.newObject("PartDesign::Pocket", "Pocket002")
pocket3.Profile = sketch5
pocket3.Length = Q("0.5 in")
pocket3.Reversed = True

doc.recompute()
